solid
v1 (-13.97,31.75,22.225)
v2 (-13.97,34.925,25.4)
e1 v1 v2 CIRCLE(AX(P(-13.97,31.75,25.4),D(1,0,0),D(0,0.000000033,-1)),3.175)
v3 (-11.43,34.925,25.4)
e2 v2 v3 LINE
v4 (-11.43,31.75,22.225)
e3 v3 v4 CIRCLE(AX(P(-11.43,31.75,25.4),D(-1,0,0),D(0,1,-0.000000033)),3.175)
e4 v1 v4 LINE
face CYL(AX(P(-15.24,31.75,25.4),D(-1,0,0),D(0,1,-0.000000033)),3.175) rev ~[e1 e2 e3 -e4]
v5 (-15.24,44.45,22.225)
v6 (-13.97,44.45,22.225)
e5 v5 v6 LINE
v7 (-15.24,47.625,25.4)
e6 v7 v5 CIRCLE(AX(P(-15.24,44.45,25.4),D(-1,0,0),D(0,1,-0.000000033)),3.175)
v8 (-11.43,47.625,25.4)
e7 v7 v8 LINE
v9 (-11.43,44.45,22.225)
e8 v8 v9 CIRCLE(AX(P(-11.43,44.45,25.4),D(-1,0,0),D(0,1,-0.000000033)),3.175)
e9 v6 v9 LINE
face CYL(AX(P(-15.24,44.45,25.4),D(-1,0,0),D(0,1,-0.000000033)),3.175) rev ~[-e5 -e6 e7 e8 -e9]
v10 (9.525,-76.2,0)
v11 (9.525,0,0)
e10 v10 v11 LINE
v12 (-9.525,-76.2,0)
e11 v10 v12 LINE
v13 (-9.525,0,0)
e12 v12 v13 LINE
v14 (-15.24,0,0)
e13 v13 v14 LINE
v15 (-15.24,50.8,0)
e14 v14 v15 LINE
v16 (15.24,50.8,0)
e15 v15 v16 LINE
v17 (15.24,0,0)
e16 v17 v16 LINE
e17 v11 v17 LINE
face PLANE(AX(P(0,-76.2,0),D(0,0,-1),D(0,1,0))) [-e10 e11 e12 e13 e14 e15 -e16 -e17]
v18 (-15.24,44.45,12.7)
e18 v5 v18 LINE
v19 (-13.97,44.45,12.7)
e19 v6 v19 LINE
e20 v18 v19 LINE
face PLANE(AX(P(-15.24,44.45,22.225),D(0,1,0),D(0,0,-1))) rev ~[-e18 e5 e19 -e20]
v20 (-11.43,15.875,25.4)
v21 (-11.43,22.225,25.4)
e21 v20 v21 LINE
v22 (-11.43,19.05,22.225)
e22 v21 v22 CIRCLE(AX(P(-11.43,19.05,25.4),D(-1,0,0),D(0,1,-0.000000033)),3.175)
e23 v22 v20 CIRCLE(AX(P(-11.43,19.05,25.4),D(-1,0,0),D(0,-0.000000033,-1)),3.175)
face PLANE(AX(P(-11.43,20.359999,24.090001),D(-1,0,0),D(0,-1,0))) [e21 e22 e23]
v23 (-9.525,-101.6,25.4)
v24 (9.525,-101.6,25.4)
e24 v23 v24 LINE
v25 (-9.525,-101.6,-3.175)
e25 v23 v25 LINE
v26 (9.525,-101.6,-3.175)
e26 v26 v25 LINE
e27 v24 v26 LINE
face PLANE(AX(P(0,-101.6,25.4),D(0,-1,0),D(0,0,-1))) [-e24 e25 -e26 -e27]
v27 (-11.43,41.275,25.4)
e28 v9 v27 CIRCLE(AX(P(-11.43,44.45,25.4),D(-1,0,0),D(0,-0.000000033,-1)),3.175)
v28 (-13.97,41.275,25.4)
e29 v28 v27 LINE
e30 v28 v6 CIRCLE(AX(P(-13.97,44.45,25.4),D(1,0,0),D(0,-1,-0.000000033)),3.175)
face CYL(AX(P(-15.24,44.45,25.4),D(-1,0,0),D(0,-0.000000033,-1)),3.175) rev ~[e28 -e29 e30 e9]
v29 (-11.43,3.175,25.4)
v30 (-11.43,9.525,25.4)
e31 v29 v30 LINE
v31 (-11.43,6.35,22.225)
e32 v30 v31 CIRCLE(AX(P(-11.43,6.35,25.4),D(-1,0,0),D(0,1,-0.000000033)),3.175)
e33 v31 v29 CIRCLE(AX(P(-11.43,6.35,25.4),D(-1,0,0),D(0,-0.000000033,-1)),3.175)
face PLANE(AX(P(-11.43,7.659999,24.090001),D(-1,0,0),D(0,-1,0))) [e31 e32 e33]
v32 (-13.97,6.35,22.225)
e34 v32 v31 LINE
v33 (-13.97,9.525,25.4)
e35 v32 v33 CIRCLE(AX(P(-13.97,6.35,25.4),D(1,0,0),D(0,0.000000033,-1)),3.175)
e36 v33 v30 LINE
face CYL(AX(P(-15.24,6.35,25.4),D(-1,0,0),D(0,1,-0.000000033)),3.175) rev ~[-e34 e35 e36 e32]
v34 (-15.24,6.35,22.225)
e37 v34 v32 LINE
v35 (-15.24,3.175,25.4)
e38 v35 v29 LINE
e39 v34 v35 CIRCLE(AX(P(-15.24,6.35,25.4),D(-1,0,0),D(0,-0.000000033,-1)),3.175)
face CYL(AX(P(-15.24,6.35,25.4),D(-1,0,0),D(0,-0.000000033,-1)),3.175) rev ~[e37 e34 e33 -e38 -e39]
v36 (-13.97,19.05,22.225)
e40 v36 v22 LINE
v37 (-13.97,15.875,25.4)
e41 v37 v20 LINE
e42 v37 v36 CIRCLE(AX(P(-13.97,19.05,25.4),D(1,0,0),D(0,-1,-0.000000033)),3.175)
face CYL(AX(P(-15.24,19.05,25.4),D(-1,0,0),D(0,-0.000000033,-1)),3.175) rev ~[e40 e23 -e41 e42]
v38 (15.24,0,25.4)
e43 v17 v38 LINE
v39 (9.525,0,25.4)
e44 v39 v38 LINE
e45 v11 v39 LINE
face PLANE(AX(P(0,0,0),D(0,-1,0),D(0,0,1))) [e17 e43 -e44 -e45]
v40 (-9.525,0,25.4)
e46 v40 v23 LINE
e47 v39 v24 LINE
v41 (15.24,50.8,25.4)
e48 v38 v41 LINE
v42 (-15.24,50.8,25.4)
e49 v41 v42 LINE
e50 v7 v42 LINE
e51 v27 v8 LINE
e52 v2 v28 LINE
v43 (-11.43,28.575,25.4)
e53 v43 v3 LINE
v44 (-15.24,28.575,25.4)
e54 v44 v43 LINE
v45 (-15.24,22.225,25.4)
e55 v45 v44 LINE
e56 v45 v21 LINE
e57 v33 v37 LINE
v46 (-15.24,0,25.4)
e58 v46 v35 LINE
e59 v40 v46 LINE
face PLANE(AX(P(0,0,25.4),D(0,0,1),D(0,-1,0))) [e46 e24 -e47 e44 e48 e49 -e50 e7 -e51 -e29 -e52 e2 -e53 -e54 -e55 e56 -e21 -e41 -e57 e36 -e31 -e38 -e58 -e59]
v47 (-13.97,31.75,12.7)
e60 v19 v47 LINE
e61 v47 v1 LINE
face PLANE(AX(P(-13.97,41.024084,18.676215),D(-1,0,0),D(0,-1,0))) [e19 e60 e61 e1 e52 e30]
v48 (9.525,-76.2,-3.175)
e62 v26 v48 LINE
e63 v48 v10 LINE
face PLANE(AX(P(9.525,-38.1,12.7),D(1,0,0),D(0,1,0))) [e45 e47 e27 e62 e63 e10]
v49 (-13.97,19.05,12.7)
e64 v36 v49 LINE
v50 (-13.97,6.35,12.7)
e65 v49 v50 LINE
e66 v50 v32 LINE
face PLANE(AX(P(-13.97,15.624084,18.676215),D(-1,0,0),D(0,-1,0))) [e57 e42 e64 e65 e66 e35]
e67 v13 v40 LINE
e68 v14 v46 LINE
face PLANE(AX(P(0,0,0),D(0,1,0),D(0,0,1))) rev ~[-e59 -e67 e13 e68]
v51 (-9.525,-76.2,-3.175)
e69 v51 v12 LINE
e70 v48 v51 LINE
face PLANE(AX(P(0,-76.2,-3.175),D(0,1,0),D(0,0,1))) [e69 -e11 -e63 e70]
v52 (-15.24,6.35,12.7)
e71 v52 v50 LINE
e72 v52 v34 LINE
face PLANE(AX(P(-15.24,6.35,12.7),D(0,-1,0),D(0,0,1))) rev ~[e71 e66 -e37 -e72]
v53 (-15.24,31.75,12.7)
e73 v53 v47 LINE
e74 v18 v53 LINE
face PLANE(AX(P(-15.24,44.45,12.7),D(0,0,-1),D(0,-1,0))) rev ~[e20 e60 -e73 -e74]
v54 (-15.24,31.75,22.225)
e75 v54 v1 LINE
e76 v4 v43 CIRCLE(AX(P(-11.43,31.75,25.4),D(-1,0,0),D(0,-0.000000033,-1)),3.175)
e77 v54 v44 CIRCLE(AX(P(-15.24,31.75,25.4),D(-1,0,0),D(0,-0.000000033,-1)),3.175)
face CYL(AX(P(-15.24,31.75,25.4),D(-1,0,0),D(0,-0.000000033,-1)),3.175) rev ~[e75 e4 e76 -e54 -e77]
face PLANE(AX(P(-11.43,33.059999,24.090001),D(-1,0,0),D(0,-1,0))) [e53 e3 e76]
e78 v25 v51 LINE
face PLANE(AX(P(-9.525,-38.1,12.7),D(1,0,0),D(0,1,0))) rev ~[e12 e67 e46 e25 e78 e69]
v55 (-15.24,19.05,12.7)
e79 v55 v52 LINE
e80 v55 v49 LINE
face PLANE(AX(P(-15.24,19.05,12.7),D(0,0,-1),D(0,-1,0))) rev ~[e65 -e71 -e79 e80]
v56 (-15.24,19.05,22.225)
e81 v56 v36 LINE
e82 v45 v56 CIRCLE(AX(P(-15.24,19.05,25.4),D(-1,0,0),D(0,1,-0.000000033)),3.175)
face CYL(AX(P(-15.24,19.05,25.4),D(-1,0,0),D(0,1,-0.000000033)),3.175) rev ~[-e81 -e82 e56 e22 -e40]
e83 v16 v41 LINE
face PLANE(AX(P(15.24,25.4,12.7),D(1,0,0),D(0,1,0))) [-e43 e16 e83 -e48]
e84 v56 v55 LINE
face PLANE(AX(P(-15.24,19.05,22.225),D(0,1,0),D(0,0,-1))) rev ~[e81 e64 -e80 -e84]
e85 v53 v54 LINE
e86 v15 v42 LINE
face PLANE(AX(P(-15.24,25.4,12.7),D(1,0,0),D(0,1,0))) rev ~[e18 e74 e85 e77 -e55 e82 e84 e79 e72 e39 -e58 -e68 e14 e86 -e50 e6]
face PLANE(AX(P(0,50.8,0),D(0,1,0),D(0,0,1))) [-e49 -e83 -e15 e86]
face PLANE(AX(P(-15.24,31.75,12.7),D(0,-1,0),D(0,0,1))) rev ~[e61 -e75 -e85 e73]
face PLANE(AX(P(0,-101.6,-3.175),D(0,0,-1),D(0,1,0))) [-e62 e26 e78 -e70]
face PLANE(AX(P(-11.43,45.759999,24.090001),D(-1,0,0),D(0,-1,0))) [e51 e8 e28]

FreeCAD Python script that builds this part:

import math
import FreeCAD as App
import Part
import Sketcher
from FreeCAD import Vector
Q = App.Units.Quantity


def add_polygon(sketch, points):
    """Adds a closed chain of lines whose ends are joined by coincident constraints."""
    first, n = sketch.GeometryCount, len(points)
    for a, b in zip(points, points[1:] + points[:1]):
        sketch.addGeometry(Part.LineSegment(App.Vector(*a, 0), App.Vector(*b, 0)), False)
    for i in range(n):
        sketch.addConstraint(Sketcher.Constraint("Coincident", first + i, 2, first + (i + 1) % n, 1))

doc = App.newDocument("Part")
params = doc.addObject("Spreadsheet::Sheet", "Params")
for row, (alias, value) in enumerate([
    ("sketch1_width", "3 in"),
    ("sketch1_width2", "4 in"),
    ("sketch1_height", "1.125 in"),
    ("pad1_length", "0.375 in"),
    ("sketch2_width", "2 in"),
    ("sketch2_height", "1 in"),
    ("pad2_length", "0.6 in"),
    ("sketch3_width", "2 in"),
    ("sketch3_height", "1 in"),
    ("pad3_length", "0.6 in"),
    ("sketch4_width", "3 in"),
    ("sketch4_width2", "4 in"),
    ("sketch4_height", "1.125 in"),
    ("pad4_length", "0.375 in"),
    ("sketch5_width", "0.5 in"),
    ("sketch5_radius", "0.125 in"),
    ("pocket1_length", "0.05 in"),
    ("sketch6_radius", "0.125 in"),
    ("pocket2_length", "0.15 in"),
], start=1):
    params.set(f"A{row}", alias)
    params.set(f"B{row}", "=" + value)
    params.setAlias(f"B{row}", alias)

body = doc.addObject("PartDesign::Body", "Body")

# Sketch on YZ plane
sketch1 = doc.addObject("Sketcher::SketchObject", "Sketch")
body.addObject(sketch1)
sketch1.AttachmentSupport = (doc.YZ_Plane, [""])
sketch1.MapMode = "FlatFace"
add_polygon(sketch1, [(-76.2, 0), (0, 0), (0, 25.4), (-101.6, 25.4), (-101.6, -3.2), (-76.2, -3.2)])  # lines 0-5
sketch1.addConstraint(Sketcher.Constraint("Horizontal", 0))
sketch1.addConstraint(Sketcher.Constraint("Vertical", 1))
sketch1.addConstraint(Sketcher.Constraint("Horizontal", 2))
sketch1.addConstraint(Sketcher.Constraint("Vertical", 3))
sketch1.addConstraint(Sketcher.Constraint("Horizontal", 4))
sketch1.addConstraint(Sketcher.Constraint("Vertical", 5))
sketch1.addConstraint(Sketcher.Constraint("Coincident", 0, 2, -1, 1))
sketch1.addConstraint(Sketcher.Constraint("Equal", 4, 1))
sketch1.addConstraint(Sketcher.Constraint("DistanceX", 0, 1, 0, 2, Q("3 in")))
sketch1.addConstraint(Sketcher.Constraint("DistanceX", 2, 2, 2, 1, Q("4 in")))
sketch1.addConstraint(Sketcher.Constraint("DistanceY", 3, 2, 3, 1, Q("1.125 in")))
sketch1.setExpression("Constraints[14]", "Params.sketch1_width")
sketch1.setExpression("Constraints[15]", "Params.sketch1_width2")
sketch1.setExpression("Constraints[16]", "Params.sketch1_height")
pad1 = doc.addObject("PartDesign::Pad", "Pad")
body.addObject(pad1)
pad1.Profile = sketch1
pad1.setExpression("Length", "Params.pad1_length")

# Sketch on YZ plane
sketch2 = doc.addObject("Sketcher::SketchObject", "Sketch001")
body.addObject(sketch2)
sketch2.AttachmentSupport = (doc.YZ_Plane, [""])
sketch2.MapMode = "FlatFace"
add_polygon(sketch2, [(0, 25), (0, 0), (51, 0), (51, 25)])  # lines 0-3
sketch2.addConstraint(Sketcher.Constraint("Vertical", 0))
sketch2.addConstraint(Sketcher.Constraint("Horizontal", 1))
sketch2.addConstraint(Sketcher.Constraint("Vertical", 2))
sketch2.addConstraint(Sketcher.Constraint("Horizontal", 3))
sketch2.addConstraint(Sketcher.Constraint("Coincident", 0, 2, -1, 1))
sketch2.addConstraint(Sketcher.Constraint("DistanceX", 1, 1, 1, 2, Q("2 in")))
sketch2.addConstraint(Sketcher.Constraint("DistanceY", 0, 2, 0, 1, Q("1 in")))
sketch2.setExpression("Constraints[9]", "Params.sketch2_width")
sketch2.setExpression("Constraints[10]", "Params.sketch2_height")
pad2 = doc.addObject("PartDesign::Pad", "Pad001")
body.addObject(pad2)
pad2.Profile = sketch2
pad2.setExpression("Length", "Params.pad2_length")

# Sketch on YZ plane
sketch3 = doc.addObject("Sketcher::SketchObject", "Sketch002")
body.addObject(sketch3)
sketch3.AttachmentSupport = (doc.YZ_Plane, [""])
sketch3.MapMode = "FlatFace"
add_polygon(sketch3, [(0, 25), (0, 0), (51, 0), (51, 25)])  # lines 0-3
sketch3.addConstraint(Sketcher.Constraint("Vertical", 0))
sketch3.addConstraint(Sketcher.Constraint("Horizontal", 1))
sketch3.addConstraint(Sketcher.Constraint("Vertical", 2))
sketch3.addConstraint(Sketcher.Constraint("Horizontal", 3))
sketch3.addConstraint(Sketcher.Constraint("Coincident", 0, 2, -1, 1))
sketch3.addConstraint(Sketcher.Constraint("DistanceX", 1, 1, 1, 2, Q("2 in")))
sketch3.addConstraint(Sketcher.Constraint("DistanceY", 0, 2, 0, 1, Q("1 in")))
sketch3.setExpression("Constraints[9]", "Params.sketch3_width")
sketch3.setExpression("Constraints[10]", "Params.sketch3_height")
pad3 = doc.addObject("PartDesign::Pad", "Pad002")
body.addObject(pad3)
pad3.Profile = sketch3
pad3.setExpression("Length", "Params.pad3_length")
pad3.Reversed = True

# Sketch on YZ plane
sketch4 = doc.addObject("Sketcher::SketchObject", "Sketch003")
body.addObject(sketch4)
sketch4.AttachmentSupport = (doc.YZ_Plane, [""])
sketch4.MapMode = "FlatFace"
add_polygon(sketch4, [(-76.2, 0), (0, 0), (0, 25.4), (-101.6, 25.4), (-101.6, -3.2), (-76.2, -3.2)])  # lines 0-5
sketch4.addConstraint(Sketcher.Constraint("Horizontal", 0))
sketch4.addConstraint(Sketcher.Constraint("Vertical", 1))
sketch4.addConstraint(Sketcher.Constraint("Horizontal", 2))
sketch4.addConstraint(Sketcher.Constraint("Vertical", 3))
sketch4.addConstraint(Sketcher.Constraint("Horizontal", 4))
sketch4.addConstraint(Sketcher.Constraint("Vertical", 5))
sketch4.addConstraint(Sketcher.Constraint("Coincident", 0, 2, -1, 1))
sketch4.addConstraint(Sketcher.Constraint("Equal", 4, 1))
sketch4.addConstraint(Sketcher.Constraint("DistanceX", 0, 1, 0, 2, Q("3 in")))
sketch4.addConstraint(Sketcher.Constraint("DistanceX", 2, 2, 2, 1, Q("4 in")))
sketch4.addConstraint(Sketcher.Constraint("DistanceY", 3, 2, 3, 1, Q("1.125 in")))
sketch4.setExpression("Constraints[14]", "Params.sketch4_width")
sketch4.setExpression("Constraints[15]", "Params.sketch4_width2")
sketch4.setExpression("Constraints[16]", "Params.sketch4_height")
pad4 = doc.addObject("PartDesign::Pad", "Pad003")
body.addObject(pad4)
pad4.Profile = sketch4
pad4.setExpression("Length", "Params.pad4_length")
pad4.Reversed = True

# Sketch on YZ plane
sketch5 = doc.addObject("Sketcher::SketchObject", "Sketch004")
body.addObject(sketch5)
sketch5.AttachmentSupport = (doc.YZ_Plane, [""])
sketch5.MapMode = "FlatFace"
sketch5.AttachmentOffset = App.Placement(Vector(0, 0, -0.6 * 25.4), App.Rotation())
sketch5.addGeometry(Part.ArcOfCircle(Part.Circle(Vector(44.5, 25.4, 0), Vector(0, 0, 1), 3.2), math.radians(-180), math.radians(-90)), False)
sketch5.addGeometry(Part.LineSegment(Vector(44.5, 22.2, 0), Vector(44.5, 12.7, 0)), False)
sketch5.addGeometry(Part.LineSegment(Vector(44.5, 12.7, 0), Vector(31.8, 12.7, 0)), False)
sketch5.addGeometry(Part.LineSegment(Vector(31.8, 12.7, 0), Vector(31.8, 22.2, 0)), False)
sketch5.addGeometry(Part.ArcOfCircle(Part.Circle(Vector(31.7, 25.4, 0), Vector(0, 0, 1), 3.2), math.radians(-90), math.radians(0)), False)
sketch5.addGeometry(Part.LineSegment(Vector(34.9, 25.4, 0), Vector(41.3, 25.4, 0)), False)
sketch5.addGeometry(Part.LineSegment(Vector(19.1, 12.7, 0), Vector(6.3, 12.7, 0)), False)
sketch5.addGeometry(Part.LineSegment(Vector(6.3, 12.7, 0), Vector(6.3, 22.2, 0)), False)
sketch5.addGeometry(Part.ArcOfCircle(Part.Circle(Vector(6.3, 25.4, 0), Vector(0, 0, 1), 3.2), math.radians(-90), math.radians(0)), False)
sketch5.addGeometry(Part.LineSegment(Vector(9.5, 25.4, 0), Vector(15.9, 25.4, 0)), False)
sketch5.addGeometry(Part.ArcOfCircle(Part.Circle(Vector(19.1, 25.4, 0), Vector(0, 0, 1), 3.2), math.radians(-180), math.radians(-90)), False)
sketch5.addGeometry(Part.LineSegment(Vector(19.1, 22.2, 0), Vector(19.1, 12.7, 0)), False)
sketch5.addConstraint(Sketcher.Constraint("Coincident", 0, 2, 1, 1))
sketch5.addConstraint(Sketcher.Constraint("Coincident", 1, 2, 2, 1))
sketch5.addConstraint(Sketcher.Constraint("Coincident", 2, 2, 3, 1))
sketch5.addConstraint(Sketcher.Constraint("Coincident", 3, 2, 4, 1))
sketch5.addConstraint(Sketcher.Constraint("Coincident", 4, 2, 5, 1))
sketch5.addConstraint(Sketcher.Constraint("Coincident", 5, 2, 0, 1))
sketch5.addConstraint(Sketcher.Constraint("Coincident", 6, 2, 7, 1))
sketch5.addConstraint(Sketcher.Constraint("Coincident", 7, 2, 8, 1))
sketch5.addConstraint(Sketcher.Constraint("Coincident", 8, 2, 9, 1))
sketch5.addConstraint(Sketcher.Constraint("Coincident", 9, 2, 10, 1))
sketch5.addConstraint(Sketcher.Constraint("Coincident", 10, 2, 11, 1))
sketch5.addConstraint(Sketcher.Constraint("Coincident", 11, 2, 6, 1))
sketch5.addConstraint(Sketcher.Constraint("Vertical", 1))
sketch5.addConstraint(Sketcher.Constraint("Horizontal", 2))
sketch5.addConstraint(Sketcher.Constraint("Vertical", 3))
sketch5.addConstraint(Sketcher.Constraint("Horizontal", 5))
sketch5.addConstraint(Sketcher.Constraint("Horizontal", 6))
sketch5.addConstraint(Sketcher.Constraint("Vertical", 7))
sketch5.addConstraint(Sketcher.Constraint("Horizontal", 9))
sketch5.addConstraint(Sketcher.Constraint("Vertical", 11))
sketch5.addConstraint(Sketcher.Constraint("Equal", 0, 4))
sketch5.addConstraint(Sketcher.Constraint("Equal", 4, 8))
sketch5.addConstraint(Sketcher.Constraint("Equal", 8, 10))
sketch5.addConstraint(Sketcher.Constraint("Horizontal", 0, 3, 4, 3))
sketch5.addConstraint(Sketcher.Constraint("Horizontal", 4, 3, 8, 3))
sketch5.addConstraint(Sketcher.Constraint("Horizontal", 8, 3, 10, 3))
sketch5.addConstraint(Sketcher.Constraint("Horizontal", 10, 3, 4, 2))
sketch5.addConstraint(Sketcher.Constraint("Horizontal", 2, 2, 6, 2))
sketch5.addConstraint(Sketcher.Constraint("Horizontal", 5, 2, 8, 2))
sketch5.addConstraint(Sketcher.Constraint("Vertical", 4, 3, 2, 2))
sketch5.addConstraint(Sketcher.Constraint("Vertical", 8, 3, 6, 2))
sketch5.addConstraint(Sketcher.Constraint("Equal", 2, 6))
sketch5.addConstraint(Sketcher.Constraint("Equal", 5, 9))
sketch5.addConstraint(Sketcher.Constraint("DistanceX", 2, 2, 2, 1, Q("0.5 in")))
sketch5.addConstraint(Sketcher.Constraint("DistanceY", -1, 1, 0, 3, Q("1 in")))
sketch5.addConstraint(Sketcher.Constraint("Radius", 0, Q("0.125 in")))
sketch5.addConstraint(Sketcher.Constraint("DistanceX", 8, 3, 4, 3, Q("1 in")))
sketch5.addConstraint(Sketcher.Constraint("DistanceX", 10, 3, 0, 2, Q("1 in")))
sketch5.addConstraint(Sketcher.Constraint("DistanceY", -1, 1, 1, 2, Q("0.5 in")))
sketch5.addConstraint(Sketcher.Constraint("DistanceX", -1, 1, 0, 3, Q("1.75 in")))
sketch5.setExpression("Constraints[33]", "Params.sketch5_width")
sketch5.setExpression("Constraints[35]", "Params.sketch5_radius")
pocket1 = doc.addObject("PartDesign::Pocket", "Pocket")
body.addObject(pocket1)
pocket1.Profile = sketch5
pocket1.setExpression("Length", "Params.pocket1_length")
pocket1.Reversed = True

# Sketch on YZ plane
sketch6 = doc.addObject("Sketcher::SketchObject", "Sketch005")
body.addObject(sketch6)
sketch6.AttachmentSupport = (doc.YZ_Plane, [""])
sketch6.MapMode = "FlatFace"
sketch6.AttachmentOffset = App.Placement(Vector(0, 0, -0.6 * 25.4), App.Rotation())
sketch6.addGeometry(Part.ArcOfCircle(Part.Circle(Vector(44.4, 25.4, 0), Vector(0, 0, 1), 3.2), math.radians(-90), math.radians(0)), False)
sketch6.addGeometry(Part.ArcOfCircle(Part.Circle(Vector(44.5, 25.4, 0), Vector(0, 0, 1), 3.2), math.radians(-180), math.radians(-90)), False)
sketch6.addGeometry(Part.LineSegment(Vector(41.3, 25.4, 0), Vector(47.6, 25.4, 0)), False)
sketch6.addGeometry(Part.ArcOfCircle(Part.Circle(Vector(31.7, 25.4, 0), Vector(0, 0, 1), 3.2), math.radians(-90), math.radians(0)), False)
sketch6.addGeometry(Part.ArcOfCircle(Part.Circle(Vector(31.8, 25.4, 0), Vector(0, 0, 1), 3.2), math.radians(-180), math.radians(-90)), False)
sketch6.addGeometry(Part.LineSegment(Vector(28.6, 25.4, 0), Vector(34.9, 25.4, 0)), False)
sketch6.addGeometry(Part.ArcOfCircle(Part.Circle(Vector(19, 25.4, 0), Vector(0, 0, 1), 3.2), math.radians(-90), math.radians(0)), False)
sketch6.addGeometry(Part.ArcOfCircle(Part.Circle(Vector(19.1, 25.4, 0), Vector(0, 0, 1), 3.2), math.radians(-180), math.radians(-90)), False)
sketch6.addGeometry(Part.LineSegment(Vector(15.9, 25.4, 0), Vector(22.2, 25.4, 0)), False)
sketch6.addGeometry(Part.ArcOfCircle(Part.Circle(Vector(6.3, 25.4, 0), Vector(0, 0, 1), 3.2), math.radians(-90), math.radians(0)), False)
sketch6.addGeometry(Part.ArcOfCircle(Part.Circle(Vector(6.4, 25.4, 0), Vector(0, 0, 1), 3.2), math.radians(-180), math.radians(-90)), False)
sketch6.addGeometry(Part.LineSegment(Vector(3.2, 25.4, 0), Vector(9.5, 25.4, 0)), False)
sketch6.addConstraint(Sketcher.Constraint("Tangent", 0, 1, 1, 2))
sketch6.addConstraint(Sketcher.Constraint("Coincident", 1, 1, 2, 1))
sketch6.addConstraint(Sketcher.Constraint("Coincident", 2, 2, 0, 2))
sketch6.addConstraint(Sketcher.Constraint("Tangent", 3, 1, 4, 2))
sketch6.addConstraint(Sketcher.Constraint("Coincident", 4, 1, 5, 1))
sketch6.addConstraint(Sketcher.Constraint("Coincident", 5, 2, 3, 2))
sketch6.addConstraint(Sketcher.Constraint("Tangent", 6, 1, 7, 2))
sketch6.addConstraint(Sketcher.Constraint("Coincident", 7, 1, 8, 1))
sketch6.addConstraint(Sketcher.Constraint("Coincident", 8, 2, 6, 2))
sketch6.addConstraint(Sketcher.Constraint("Tangent", 9, 1, 10, 2))
sketch6.addConstraint(Sketcher.Constraint("Coincident", 10, 1, 11, 1))
sketch6.addConstraint(Sketcher.Constraint("Coincident", 11, 2, 9, 2))
sketch6.addConstraint(Sketcher.Constraint("Horizontal", 2))
sketch6.addConstraint(Sketcher.Constraint("Horizontal", 5))
sketch6.addConstraint(Sketcher.Constraint("Horizontal", 8))
sketch6.addConstraint(Sketcher.Constraint("Horizontal", 11))
sketch6.addConstraint(Sketcher.Constraint("Equal", 0, 1))
sketch6.addConstraint(Sketcher.Constraint("Equal", 1, 3))
sketch6.addConstraint(Sketcher.Constraint("Equal", 3, 4))
sketch6.addConstraint(Sketcher.Constraint("Equal", 4, 6))
sketch6.addConstraint(Sketcher.Constraint("Equal", 6, 7))
sketch6.addConstraint(Sketcher.Constraint("Equal", 7, 9))
sketch6.addConstraint(Sketcher.Constraint("Equal", 9, 10))
sketch6.addConstraint(Sketcher.Constraint("Horizontal", 1, 3, 3, 3))
sketch6.addConstraint(Sketcher.Constraint("Horizontal", 4, 3, 6, 3))
sketch6.addConstraint(Sketcher.Constraint("Horizontal", 7, 3, 9, 3))
sketch6.addConstraint(Sketcher.Constraint("Horizontal", 10, 3, 1, 1))
sketch6.addConstraint(Sketcher.Constraint("Horizontal", 2, 2, 4, 1))
sketch6.addConstraint(Sketcher.Constraint("Horizontal", 5, 2, 7, 1))
sketch6.addConstraint(Sketcher.Constraint("Horizontal", 8, 2, 10, 1))
sketch6.addConstraint(Sketcher.Constraint("Vertical", 1, 3, 0, 1))
sketch6.addConstraint(Sketcher.Constraint("Vertical", 4, 3, 3, 1))
sketch6.addConstraint(Sketcher.Constraint("Vertical", 7, 3, 6, 1))
sketch6.addConstraint(Sketcher.Constraint("Vertical", 10, 3, 9, 1))
sketch6.addConstraint(Sketcher.Constraint("DistanceY", -1, 1, 0, 3, Q("1 in")))
sketch6.addConstraint(Sketcher.Constraint("Radius", 0, Q("0.125 in")))
sketch6.addConstraint(Sketcher.Constraint("DistanceX", 6, 3, 0, 3, Q("1 in")))
sketch6.addConstraint(Sketcher.Constraint("DistanceX", 9, 3, 3, 3, Q("1 in")))
sketch6.addConstraint(Sketcher.Constraint("DistanceX", 3, 3, 0, 3, Q("0.5 in")))
sketch6.addConstraint(Sketcher.Constraint("DistanceX", -1, 1, 0, 3, Q("1.75 in")))
sketch6.setExpression("Constraints[35]", "Params.sketch6_radius")
pocket2 = doc.addObject("PartDesign::Pocket", "Pocket001")
body.addObject(pocket2)
pocket2.Profile = sketch6
pocket2.setExpression("Length", "Params.pocket2_length")
pocket2.Reversed = True

doc.recompute()
